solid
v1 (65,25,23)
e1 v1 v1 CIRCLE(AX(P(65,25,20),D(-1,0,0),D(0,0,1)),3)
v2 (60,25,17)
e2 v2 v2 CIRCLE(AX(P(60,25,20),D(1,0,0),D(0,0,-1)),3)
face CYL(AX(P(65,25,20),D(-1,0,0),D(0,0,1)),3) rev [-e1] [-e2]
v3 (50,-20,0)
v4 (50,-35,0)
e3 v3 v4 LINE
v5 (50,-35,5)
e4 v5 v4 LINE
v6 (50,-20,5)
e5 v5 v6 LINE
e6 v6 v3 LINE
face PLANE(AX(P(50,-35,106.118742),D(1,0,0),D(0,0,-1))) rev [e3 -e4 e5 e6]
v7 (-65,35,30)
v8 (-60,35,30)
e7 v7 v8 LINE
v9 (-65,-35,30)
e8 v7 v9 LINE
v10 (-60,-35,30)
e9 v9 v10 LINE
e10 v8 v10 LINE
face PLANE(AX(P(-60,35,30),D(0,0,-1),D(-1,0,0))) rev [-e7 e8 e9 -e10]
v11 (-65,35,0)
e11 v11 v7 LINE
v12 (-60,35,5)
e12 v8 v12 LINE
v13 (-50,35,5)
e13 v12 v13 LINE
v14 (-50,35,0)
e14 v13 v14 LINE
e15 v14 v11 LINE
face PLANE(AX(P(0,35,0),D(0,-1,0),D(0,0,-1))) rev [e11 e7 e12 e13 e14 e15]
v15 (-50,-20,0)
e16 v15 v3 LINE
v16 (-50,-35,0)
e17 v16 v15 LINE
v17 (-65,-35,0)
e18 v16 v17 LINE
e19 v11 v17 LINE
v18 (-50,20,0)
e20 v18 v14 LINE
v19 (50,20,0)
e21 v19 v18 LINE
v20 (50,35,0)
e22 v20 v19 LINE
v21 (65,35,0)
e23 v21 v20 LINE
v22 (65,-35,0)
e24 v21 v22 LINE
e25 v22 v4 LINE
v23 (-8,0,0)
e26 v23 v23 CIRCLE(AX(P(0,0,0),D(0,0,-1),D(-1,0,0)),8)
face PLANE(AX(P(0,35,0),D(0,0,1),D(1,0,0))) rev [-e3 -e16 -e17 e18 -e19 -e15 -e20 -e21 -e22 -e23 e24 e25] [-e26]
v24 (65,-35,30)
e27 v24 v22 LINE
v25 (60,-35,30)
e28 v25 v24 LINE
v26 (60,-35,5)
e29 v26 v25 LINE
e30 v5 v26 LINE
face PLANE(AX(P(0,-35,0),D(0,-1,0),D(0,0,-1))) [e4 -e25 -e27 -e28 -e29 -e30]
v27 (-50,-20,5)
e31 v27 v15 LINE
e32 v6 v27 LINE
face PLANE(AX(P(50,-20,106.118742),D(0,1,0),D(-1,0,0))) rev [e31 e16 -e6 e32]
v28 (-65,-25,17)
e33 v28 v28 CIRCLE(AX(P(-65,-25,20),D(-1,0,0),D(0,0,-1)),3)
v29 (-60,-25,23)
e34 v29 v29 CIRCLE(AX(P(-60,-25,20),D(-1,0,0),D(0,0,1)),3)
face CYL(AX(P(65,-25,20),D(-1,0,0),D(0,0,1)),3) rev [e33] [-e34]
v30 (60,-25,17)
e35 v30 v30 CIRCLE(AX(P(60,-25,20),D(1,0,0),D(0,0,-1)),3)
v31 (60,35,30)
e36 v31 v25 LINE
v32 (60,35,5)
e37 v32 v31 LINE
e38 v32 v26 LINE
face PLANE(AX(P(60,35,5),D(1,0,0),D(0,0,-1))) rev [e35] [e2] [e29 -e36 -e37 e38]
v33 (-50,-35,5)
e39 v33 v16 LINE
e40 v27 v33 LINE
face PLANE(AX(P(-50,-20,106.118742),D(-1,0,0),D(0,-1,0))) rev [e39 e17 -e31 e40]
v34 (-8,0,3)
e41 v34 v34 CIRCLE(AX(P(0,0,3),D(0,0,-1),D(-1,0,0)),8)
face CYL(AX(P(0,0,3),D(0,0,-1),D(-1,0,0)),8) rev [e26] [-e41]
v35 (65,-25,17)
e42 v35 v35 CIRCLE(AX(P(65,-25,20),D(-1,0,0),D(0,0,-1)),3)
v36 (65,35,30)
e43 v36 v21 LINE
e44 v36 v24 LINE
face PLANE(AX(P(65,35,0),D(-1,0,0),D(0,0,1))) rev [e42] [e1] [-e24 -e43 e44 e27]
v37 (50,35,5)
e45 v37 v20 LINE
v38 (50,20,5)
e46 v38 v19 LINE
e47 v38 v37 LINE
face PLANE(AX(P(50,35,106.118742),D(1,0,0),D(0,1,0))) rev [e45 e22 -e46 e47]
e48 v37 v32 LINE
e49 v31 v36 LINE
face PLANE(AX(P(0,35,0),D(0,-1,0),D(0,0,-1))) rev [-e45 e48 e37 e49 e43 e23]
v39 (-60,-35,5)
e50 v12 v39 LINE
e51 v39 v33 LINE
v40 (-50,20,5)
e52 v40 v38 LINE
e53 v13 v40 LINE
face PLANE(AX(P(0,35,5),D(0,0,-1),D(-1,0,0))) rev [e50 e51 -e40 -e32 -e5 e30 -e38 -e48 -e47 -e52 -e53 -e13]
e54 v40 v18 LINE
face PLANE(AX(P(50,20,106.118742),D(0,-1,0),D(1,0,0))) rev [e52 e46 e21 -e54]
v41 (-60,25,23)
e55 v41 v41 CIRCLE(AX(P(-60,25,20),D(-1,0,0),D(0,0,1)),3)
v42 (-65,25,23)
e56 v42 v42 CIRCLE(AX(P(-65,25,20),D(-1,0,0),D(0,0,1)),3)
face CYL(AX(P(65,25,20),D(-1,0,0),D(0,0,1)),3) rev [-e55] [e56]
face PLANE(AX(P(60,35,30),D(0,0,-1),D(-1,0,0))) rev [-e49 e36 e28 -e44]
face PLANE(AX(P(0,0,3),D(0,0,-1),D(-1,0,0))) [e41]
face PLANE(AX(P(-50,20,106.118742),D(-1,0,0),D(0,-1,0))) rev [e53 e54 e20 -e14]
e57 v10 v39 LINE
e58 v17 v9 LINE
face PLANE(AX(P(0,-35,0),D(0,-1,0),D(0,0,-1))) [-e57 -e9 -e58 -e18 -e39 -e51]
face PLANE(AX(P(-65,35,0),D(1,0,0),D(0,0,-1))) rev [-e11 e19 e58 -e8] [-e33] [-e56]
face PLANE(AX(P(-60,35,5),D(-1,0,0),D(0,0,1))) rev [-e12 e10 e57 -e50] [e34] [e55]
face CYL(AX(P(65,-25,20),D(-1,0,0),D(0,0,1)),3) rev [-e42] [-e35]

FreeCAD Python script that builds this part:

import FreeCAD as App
import Part
import Sketcher
from FreeCAD import Vector
Q = App.Units.Quantity

doc = App.newDocument("Part")
body = doc.addObject("PartDesign::Body", "Body")

sketch1 = body.newObject("Sketcher::SketchObject", "Sketch")
sketch1.AttachmentSupport = (doc.getObject("XZ_Plane"), [""])
sketch1.MapMode = "FlatFace"
sketch1.addGeometry([
    Part.LineSegment(Vector(65, 0, 0), Vector(-65, 0, 0)),
    Part.LineSegment(Vector(-65, 0, 0), Vector(-65, 30, 0)),
    Part.LineSegment(Vector(-65, 30, 0), Vector(-60, 30, 0)),
    Part.LineSegment(Vector(-60, 30, 0), Vector(-60, 5, 0)),
    Part.LineSegment(Vector(-60, 5, 0), Vector(60, 5, 0)),
    Part.LineSegment(Vector(60, 5, 0), Vector(60, 30, 0)),
    Part.LineSegment(Vector(60, 30, 0), Vector(65, 30, 0)),
    Part.LineSegment(Vector(65, 30, 0), Vector(65, 0, 0)),
], False)
sketch1.addConstraint([
    Sketcher.Constraint("Coincident", 0, 2, 1, 1),
    Sketcher.Constraint("Coincident", 1, 2, 2, 1),
    Sketcher.Constraint("Coincident", 2, 2, 3, 1),
    Sketcher.Constraint("Coincident", 3, 2, 4, 1),
    Sketcher.Constraint("Coincident", 4, 2, 5, 1),
    Sketcher.Constraint("Coincident", 5, 2, 6, 1),
    Sketcher.Constraint("Coincident", 6, 2, 7, 1),
    Sketcher.Constraint("Coincident", 7, 2, 0, 1),
    Sketcher.Constraint("Horizontal", 0),
    Sketcher.Constraint("Vertical", 1),
    Sketcher.Constraint("Horizontal", 2),
    Sketcher.Constraint("Vertical", 3),
    Sketcher.Constraint("Horizontal", 4),
    Sketcher.Constraint("Vertical", 5),
    Sketcher.Constraint("Horizontal", 6),
    Sketcher.Constraint("Vertical", 7),
    Sketcher.Constraint("Symmetric", 0, 2, 7, 2, -1, 1),
    Sketcher.Constraint("Symmetric", 2, 2, 5, 2, -2),
    Sketcher.Constraint("DistanceX", 0, 2, 0, 1, Q("130 mm")),
    Sketcher.Constraint("DistanceX", 2, 1, 2, 2, Q("5 mm")),
    Sketcher.Constraint("DistanceY", 1, 1, 1, 2, Q("30 mm")),
    Sketcher.Constraint("DistanceY", 3, 2, 3, 1, Q("25 mm")),
])
pad1 = body.newObject("PartDesign::Pad", "Pad")
pad1.Profile = sketch1
pad1.Length = 70
pad1.Midplane = True

sketch2 = body.newObject("Sketcher::SketchObject", "Sketch001")
sketch2.AttachmentSupport = (doc.getObject("XY_Plane"), [""])
sketch2.MapMode = "FlatFace"
sketch2.addGeometry([
    Part.LineSegment(Vector(50, -20, 0), Vector(50, -35, 0)),
    Part.LineSegment(Vector(50, -35, 0), Vector(-50, -35, 0)),
    Part.LineSegment(Vector(-50, -35, 0), Vector(-50, -20, 0)),
    Part.LineSegment(Vector(-50, -20, 0), Vector(50, -20, 0)),
    Part.LineSegment(Vector(50, 35, 0), Vector(50, 20, 0)),
    Part.LineSegment(Vector(50, 20, 0), Vector(-50, 20, 0)),
    Part.LineSegment(Vector(-50, 20, 0), Vector(-50, 35, 0)),
    Part.LineSegment(Vector(-50, 35, 0), Vector(50, 35, 0)),
], False)
sketch2.addConstraint([
    Sketcher.Constraint("Coincident", 0, 2, 1, 1),
    Sketcher.Constraint("Coincident", 1, 2, 2, 1),
    Sketcher.Constraint("Coincident", 2, 2, 3, 1),
    Sketcher.Constraint("Coincident", 3, 2, 0, 1),
    Sketcher.Constraint("Coincident", 4, 2, 5, 1),
    Sketcher.Constraint("Coincident", 5, 2, 6, 1),
    Sketcher.Constraint("Coincident", 6, 2, 7, 1),
    Sketcher.Constraint("Coincident", 7, 2, 4, 1),
    Sketcher.Constraint("Vertical", 0),
    Sketcher.Constraint("Horizontal", 1),
    Sketcher.Constraint("Vertical", 2),
    Sketcher.Constraint("Horizontal", 3),
    Sketcher.Constraint("Vertical", 4),
    Sketcher.Constraint("Horizontal", 5),
    Sketcher.Constraint("Vertical", 6),
    Sketcher.Constraint("Horizontal", 7),
    Sketcher.Constraint("Symmetric", 2, 2, 4, 2, -1, 1),
    Sketcher.Constraint("Symmetric", 0, 2, 6, 2, -1, 1),
    Sketcher.Constraint("Vertical", 3, 2, 4, 2),
    Sketcher.Constraint("DistanceX", 1, 2, 1, 1, Q("100 mm")),
    Sketcher.Constraint("DistanceY", 0, 2, 0, 1, Q("15 mm")),
    Sketcher.Constraint("DistanceY", 0, 2, -1, 1, Q("35 mm")),
])
pocket1 = body.newObject("PartDesign::Pocket", "Pocket")
pocket1.Profile = sketch2
pocket1.Length = 5
pocket1.Reversed = True

sketch3 = body.newObject("Sketcher::SketchObject", "Sketch002")
sketch3.AttachmentSupport = (doc.getObject("YZ_Plane"), [""])
sketch3.MapMode = "FlatFace"
sketch3.AttachmentOffset = App.Placement(Vector(0, 0, -65), App.Rotation())
sketch3.addGeometry([
    Part.Circle(Vector(25, 20, 0), Vector(0, 0, 1), 3),
    Part.Circle(Vector(-25, 20, 0), Vector(0, 0, 1), 3),
], False)
sketch3.addConstraint([
    Sketcher.Constraint("Equal", 0, 1),
    Sketcher.Constraint("Symmetric", 0, 3, 1, 3, -2),
    Sketcher.Constraint("Diameter", 0, Q("6 mm")),
    Sketcher.Constraint("DistanceX", -1, 1, 0, 3, Q("25 mm")),
    Sketcher.Constraint("DistanceY", -1, 1, 0, 3, Q("20 mm")),
])
pocket2 = body.newObject("PartDesign::Pocket", "Pocket001")
pocket2.Profile = sketch3
pocket2.Type = "ThroughAll"
pocket2.Reversed = True

sketch4 = body.newObject("Sketcher::SketchObject", "Sketch003")
sketch4.AttachmentSupport = (doc.getObject("XY_Plane"), [""])
sketch4.MapMode = "FlatFace"
sketch4.addGeometry(Part.Circle(Vector(0, 0, 0), Vector(0, 0, 1), 8), False)
sketch4.addConstraint([
    Sketcher.Constraint("Coincident", 0, 3, -1, 1),
    Sketcher.Constraint("Diameter", 0, Q("16 mm")),
])
pocket3 = body.newObject("PartDesign::Pocket", "Pocket002")
pocket3.Profile = sketch4
pocket3.Length = 3
pocket3.Reversed = True

doc.recompute()
